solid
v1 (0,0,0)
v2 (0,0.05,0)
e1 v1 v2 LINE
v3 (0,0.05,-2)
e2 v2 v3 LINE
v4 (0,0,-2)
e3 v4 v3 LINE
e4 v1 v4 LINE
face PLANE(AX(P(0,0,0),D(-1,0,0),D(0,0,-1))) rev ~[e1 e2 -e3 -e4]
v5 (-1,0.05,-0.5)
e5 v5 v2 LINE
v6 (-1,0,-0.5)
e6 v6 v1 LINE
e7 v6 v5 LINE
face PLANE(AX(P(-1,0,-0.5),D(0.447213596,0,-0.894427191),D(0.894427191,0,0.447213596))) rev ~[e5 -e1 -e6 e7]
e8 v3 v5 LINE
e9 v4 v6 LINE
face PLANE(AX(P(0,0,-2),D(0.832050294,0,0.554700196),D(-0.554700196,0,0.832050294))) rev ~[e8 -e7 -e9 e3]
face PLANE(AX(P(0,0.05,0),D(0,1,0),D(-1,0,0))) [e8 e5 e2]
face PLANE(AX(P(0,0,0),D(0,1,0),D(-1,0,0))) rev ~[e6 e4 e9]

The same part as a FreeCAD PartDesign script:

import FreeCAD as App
import Part
import Sketcher
from FreeCAD import Vector
Q = App.Units.Quantity


def add_polygon(sketch, points):
    """Adds a closed chain of lines whose ends are joined by coincident constraints."""
    first, n = sketch.GeometryCount, len(points)
    for a, b in zip(points, points[1:] + points[:1]):
        sketch.addGeometry(Part.LineSegment(App.Vector(*a, 0), App.Vector(*b, 0)), False)
    for i in range(n):
        sketch.addConstraint(Sketcher.Constraint("Coincident", first + i, 2, first + (i + 1) % n, 1))

doc = App.newDocument("Part")
body = doc.addObject("PartDesign::Body", "Body")

sketch1 = body.newObject("Sketcher::SketchObject", "Sketch")
sketch1.AttachmentSupport = (doc.getObject("XZ_Plane"), [""])
sketch1.MapMode = "FlatFace"
add_polygon(sketch1, [(-1, -0.5), (0, 0), (0, -2)])
sketch1.addConstraint(Sketcher.Constraint("Vertical", 1))
sketch1.addConstraint(Sketcher.Constraint("Coincident", 0, 2, -1, 1))
sketch1.addConstraint(Sketcher.Constraint("DistanceY", 1, 2, 1, 1, Q("2 mm")))
sketch1.addConstraint(Sketcher.Constraint("DistanceX", 2, 2, -1, 1, Q("1 mm")))
sketch1.addConstraint(Sketcher.Constraint("DistanceY", 1, 2, 2, 2, Q("1.5 mm")))
pad1 = body.newObject("PartDesign::Pad", "Pad")
pad1.Profile = sketch1
pad1.Length = 0.05
pad1.Reversed = True

doc.recompute()
